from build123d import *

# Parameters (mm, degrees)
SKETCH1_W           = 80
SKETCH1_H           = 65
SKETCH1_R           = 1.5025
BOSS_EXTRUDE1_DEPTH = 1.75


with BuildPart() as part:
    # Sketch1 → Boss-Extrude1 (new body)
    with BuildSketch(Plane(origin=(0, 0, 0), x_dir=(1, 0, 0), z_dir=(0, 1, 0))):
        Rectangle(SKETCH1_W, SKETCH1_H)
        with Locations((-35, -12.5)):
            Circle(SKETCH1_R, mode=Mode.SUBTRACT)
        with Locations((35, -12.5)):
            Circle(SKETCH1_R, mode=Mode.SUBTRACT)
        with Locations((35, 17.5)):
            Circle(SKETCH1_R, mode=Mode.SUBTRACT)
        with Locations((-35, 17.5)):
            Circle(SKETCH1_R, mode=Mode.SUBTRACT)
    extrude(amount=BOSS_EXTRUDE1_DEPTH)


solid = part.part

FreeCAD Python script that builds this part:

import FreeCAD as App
import Part
import Sketcher

doc = App.newDocument("Part")
params = doc.addObject("Spreadsheet::Sheet", "Params")
for row, (alias, value) in enumerate([
    ("sketch1_width", "80 mm"),
    ("sketch1_height", "65 mm"),
    ("pad1_length", "1.75 mm"),
], start=1):
    params.set(f"A{row}", alias)
    params.set(f"B{row}", "=" + value)
    params.setAlias(f"B{row}", alias)

body = doc.addObject("PartDesign::Body", "Body")

# Sketch on XZ plane
sketch1 = body.newObject("Sketcher::SketchObject", "Sketch")
sketch1.AttachmentSupport = (doc.getObject("XZ_Plane"), [""])
sketch1.MapMode = "FlatFace"
sketch1.addGeometry([
    Part.LineSegment(App.Vector(-40, -32.5, 0), App.Vector(-40, 32.5, 0)),  # 0
    Part.LineSegment(App.Vector(-40, 32.5, 0), App.Vector(40, 32.5, 0)),  # 1
    Part.LineSegment(App.Vector(40, 32.5, 0), App.Vector(40, -32.5, 0)),  # 2
    Part.LineSegment(App.Vector(40, -32.5, 0), App.Vector(-40, -32.5, 0)),  # 3
    Part.Circle(App.Vector(-35, 12.5, 0), App.Vector(0, 0, 1), 1.5025),  # 4
    Part.Circle(App.Vector(35, 12.5, 0), App.Vector(0, 0, 1), 1.5025),  # 5
    Part.Circle(App.Vector(-35, -17.5, 0), App.Vector(0, 0, 1), 1.5025),  # 6
    Part.Circle(App.Vector(35, -17.5, 0), App.Vector(0, 0, 1), 1.5025),  # 7
], False)
sketch1.addConstraint([
    Sketcher.Constraint("Coincident", 0, 2, 1, 1),
    Sketcher.Constraint("Coincident", 1, 2, 2, 1),
    Sketcher.Constraint("Coincident", 2, 2, 3, 1),
    Sketcher.Constraint("Coincident", 3, 2, 0, 1),
    Sketcher.Constraint("Vertical", 0),
    Sketcher.Constraint("Horizontal", 1),
    Sketcher.Constraint("Vertical", 2),
    Sketcher.Constraint("Horizontal", 3),
    Sketcher.Constraint("Equal", 4, 5),
    Sketcher.Constraint("Equal", 5, 6),
    Sketcher.Constraint("Equal", 6, 7),
    Sketcher.Constraint("Symmetric", 0, 2, 2, 2, -1, 1),
    Sketcher.Constraint("Symmetric", 4, 3, 5, 3, -2),
    Sketcher.Constraint("Symmetric", 6, 3, 7, 3, -2),
    Sketcher.Constraint("Vertical", 4, 3, 6, 3),
    Sketcher.Constraint("DistanceX", 1, 1, 1, 2, 80.0),
    Sketcher.Constraint("DistanceY", 0, 1, 0, 2, 65.0),
    Sketcher.Constraint("Diameter", 4, 3.005),
    Sketcher.Constraint("DistanceX", 4, 3, -1, 1, 35.0),
    Sketcher.Constraint("DistanceY", 6, 3, 4, 3, 30.0),
    Sketcher.Constraint("DistanceY", 4, 3, 0, 2, 20.0),
])
sketch1.setExpression("Constraints[15]", "Params.sketch1_width")
sketch1.setExpression("Constraints[16]", "Params.sketch1_height")
pad1 = body.newObject("PartDesign::Pad", "Pad")
pad1.Profile = sketch1
pad1.setExpression("Length", "Params.pad1_length")
pad1.Reversed = True

doc.recompute()
